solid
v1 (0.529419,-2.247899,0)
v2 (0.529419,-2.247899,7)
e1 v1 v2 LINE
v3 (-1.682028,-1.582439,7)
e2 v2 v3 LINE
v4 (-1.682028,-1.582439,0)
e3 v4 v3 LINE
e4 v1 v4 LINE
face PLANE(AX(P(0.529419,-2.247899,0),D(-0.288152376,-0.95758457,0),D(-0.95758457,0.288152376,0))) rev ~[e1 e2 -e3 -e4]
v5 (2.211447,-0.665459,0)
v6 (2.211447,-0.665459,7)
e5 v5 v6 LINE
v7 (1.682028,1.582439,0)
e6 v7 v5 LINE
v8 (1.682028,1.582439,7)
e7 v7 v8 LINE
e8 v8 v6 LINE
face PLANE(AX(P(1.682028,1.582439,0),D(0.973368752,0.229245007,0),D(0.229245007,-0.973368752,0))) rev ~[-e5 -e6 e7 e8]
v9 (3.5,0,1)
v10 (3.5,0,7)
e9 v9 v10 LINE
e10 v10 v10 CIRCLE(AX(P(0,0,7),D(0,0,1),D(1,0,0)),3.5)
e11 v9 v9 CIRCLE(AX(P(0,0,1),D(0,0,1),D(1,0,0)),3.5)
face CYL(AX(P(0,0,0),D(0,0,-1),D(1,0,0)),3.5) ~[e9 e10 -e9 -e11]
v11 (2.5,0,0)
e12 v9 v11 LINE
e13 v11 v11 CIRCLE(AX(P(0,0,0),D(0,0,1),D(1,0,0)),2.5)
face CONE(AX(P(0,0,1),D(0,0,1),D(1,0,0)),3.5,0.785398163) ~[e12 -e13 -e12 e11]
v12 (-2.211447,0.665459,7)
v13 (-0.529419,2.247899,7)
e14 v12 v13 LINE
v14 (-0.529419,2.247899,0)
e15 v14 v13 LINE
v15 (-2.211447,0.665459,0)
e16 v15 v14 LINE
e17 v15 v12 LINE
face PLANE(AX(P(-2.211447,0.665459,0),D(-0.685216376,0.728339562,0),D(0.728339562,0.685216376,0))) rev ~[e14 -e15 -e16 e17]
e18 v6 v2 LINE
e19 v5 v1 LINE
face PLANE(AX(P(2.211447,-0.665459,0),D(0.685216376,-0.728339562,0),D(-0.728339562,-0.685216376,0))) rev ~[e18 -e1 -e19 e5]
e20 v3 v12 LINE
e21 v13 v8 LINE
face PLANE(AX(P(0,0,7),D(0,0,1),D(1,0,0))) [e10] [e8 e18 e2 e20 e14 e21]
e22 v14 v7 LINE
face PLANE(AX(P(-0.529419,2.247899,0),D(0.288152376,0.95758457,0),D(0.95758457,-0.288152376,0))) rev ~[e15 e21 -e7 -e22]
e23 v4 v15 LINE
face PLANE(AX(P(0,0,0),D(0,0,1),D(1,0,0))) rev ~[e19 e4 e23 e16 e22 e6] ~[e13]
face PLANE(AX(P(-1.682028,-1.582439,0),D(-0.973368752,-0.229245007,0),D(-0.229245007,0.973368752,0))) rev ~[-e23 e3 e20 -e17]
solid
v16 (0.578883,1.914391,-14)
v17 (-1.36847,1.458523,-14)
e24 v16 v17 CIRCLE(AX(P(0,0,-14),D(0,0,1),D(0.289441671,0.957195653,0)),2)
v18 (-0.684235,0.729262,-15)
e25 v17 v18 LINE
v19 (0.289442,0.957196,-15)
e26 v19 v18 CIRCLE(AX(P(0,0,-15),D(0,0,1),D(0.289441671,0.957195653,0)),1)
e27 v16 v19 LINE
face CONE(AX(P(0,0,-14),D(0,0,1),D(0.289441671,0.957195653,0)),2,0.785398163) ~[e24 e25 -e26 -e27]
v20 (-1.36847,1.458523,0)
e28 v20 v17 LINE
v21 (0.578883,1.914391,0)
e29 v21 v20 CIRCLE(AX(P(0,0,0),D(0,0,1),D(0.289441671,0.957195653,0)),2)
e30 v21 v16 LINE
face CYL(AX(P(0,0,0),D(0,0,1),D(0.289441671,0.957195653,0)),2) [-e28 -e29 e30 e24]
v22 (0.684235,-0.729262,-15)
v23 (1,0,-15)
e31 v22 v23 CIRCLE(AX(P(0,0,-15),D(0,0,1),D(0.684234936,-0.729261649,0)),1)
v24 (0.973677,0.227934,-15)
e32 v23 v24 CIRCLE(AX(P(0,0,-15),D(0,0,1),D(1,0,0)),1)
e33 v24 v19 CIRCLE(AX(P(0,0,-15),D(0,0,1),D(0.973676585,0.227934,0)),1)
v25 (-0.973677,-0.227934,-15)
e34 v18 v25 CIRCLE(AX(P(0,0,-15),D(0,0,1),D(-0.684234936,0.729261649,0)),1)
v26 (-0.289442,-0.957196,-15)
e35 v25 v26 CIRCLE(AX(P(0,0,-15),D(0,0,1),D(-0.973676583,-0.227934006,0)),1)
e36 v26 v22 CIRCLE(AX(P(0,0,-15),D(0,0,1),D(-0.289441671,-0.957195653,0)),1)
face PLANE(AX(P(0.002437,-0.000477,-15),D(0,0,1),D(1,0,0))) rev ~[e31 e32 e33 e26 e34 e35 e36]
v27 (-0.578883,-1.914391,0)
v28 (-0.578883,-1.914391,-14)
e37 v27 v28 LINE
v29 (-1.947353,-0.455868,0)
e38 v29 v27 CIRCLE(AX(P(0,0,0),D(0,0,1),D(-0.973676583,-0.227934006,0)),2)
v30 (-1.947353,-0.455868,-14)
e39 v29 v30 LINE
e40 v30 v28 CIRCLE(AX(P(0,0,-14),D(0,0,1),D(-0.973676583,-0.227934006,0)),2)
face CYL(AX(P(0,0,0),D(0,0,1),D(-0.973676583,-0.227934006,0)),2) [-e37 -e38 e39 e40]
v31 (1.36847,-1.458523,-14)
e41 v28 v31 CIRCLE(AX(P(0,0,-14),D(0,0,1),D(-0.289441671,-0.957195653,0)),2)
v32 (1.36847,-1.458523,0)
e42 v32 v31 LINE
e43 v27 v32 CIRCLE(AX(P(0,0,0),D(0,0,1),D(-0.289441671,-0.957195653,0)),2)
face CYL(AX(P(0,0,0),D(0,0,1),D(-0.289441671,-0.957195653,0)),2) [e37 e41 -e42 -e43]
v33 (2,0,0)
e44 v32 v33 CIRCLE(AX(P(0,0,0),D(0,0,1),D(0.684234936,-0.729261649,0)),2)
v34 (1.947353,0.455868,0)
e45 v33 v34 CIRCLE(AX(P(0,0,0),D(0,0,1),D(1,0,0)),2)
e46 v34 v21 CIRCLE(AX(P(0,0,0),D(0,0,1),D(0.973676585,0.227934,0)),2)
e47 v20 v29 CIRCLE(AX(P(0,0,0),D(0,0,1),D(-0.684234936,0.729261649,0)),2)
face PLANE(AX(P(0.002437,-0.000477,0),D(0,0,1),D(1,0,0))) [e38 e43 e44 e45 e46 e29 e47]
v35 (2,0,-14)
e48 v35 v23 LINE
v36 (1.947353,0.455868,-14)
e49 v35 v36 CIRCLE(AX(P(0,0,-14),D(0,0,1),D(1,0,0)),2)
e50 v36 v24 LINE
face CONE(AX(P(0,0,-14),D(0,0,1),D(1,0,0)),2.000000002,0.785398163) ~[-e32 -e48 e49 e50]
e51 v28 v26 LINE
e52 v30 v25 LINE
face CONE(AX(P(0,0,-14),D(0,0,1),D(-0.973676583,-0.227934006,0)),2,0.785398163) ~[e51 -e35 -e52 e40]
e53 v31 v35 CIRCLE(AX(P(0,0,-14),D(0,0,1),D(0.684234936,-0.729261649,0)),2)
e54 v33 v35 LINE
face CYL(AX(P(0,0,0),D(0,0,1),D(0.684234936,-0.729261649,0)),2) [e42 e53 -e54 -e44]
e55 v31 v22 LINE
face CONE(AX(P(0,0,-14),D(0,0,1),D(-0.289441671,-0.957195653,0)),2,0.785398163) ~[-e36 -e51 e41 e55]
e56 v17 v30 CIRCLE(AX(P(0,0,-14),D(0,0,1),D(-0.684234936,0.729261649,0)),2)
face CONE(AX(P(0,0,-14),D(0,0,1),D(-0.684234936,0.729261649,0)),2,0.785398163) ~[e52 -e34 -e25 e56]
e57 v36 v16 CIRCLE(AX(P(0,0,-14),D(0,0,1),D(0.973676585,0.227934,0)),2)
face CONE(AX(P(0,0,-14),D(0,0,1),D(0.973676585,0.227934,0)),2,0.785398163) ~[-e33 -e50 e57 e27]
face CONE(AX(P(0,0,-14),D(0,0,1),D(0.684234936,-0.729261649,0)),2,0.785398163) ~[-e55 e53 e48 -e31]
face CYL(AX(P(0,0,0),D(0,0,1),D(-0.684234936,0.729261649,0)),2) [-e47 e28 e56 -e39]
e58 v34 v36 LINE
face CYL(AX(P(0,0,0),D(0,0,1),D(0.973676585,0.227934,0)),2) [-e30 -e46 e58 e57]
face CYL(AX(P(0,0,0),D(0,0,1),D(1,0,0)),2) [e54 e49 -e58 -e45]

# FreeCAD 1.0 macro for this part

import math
import FreeCAD as App
import Part
import Sketcher

V = App.Vector


def edges_at(feature, points):
    """Names of the edges that pass closest to the given points."""
    edges = feature.Shape.Edges
    near = lambda p: min(range(len(edges)), key=lambda i: edges[i].distToShape(Part.Vertex(*p))[0])
    return sorted({f"Edge{near(p) + 1}" for p in points})


def add_polygon(sketch, points):
    """Adds a closed chain of lines whose ends are joined by coincident constraints."""
    first, n = sketch.GeometryCount, len(points)
    for a, b in zip(points, points[1:] + points[:1]):
        sketch.addGeometry(Part.LineSegment(App.Vector(*a, 0), App.Vector(*b, 0)), False)
    for i in range(n):
        sketch.addConstraint(Sketcher.Constraint("Coincident", first + i, 2, first + (i + 1) % n, 1))

doc = App.newDocument("Part")
body = doc.addObject("PartDesign::Body", "Body")

sketch1 = body.newObject("Sketcher::SketchObject", "Sketch")
sketch1.AttachmentSupport = (doc.getObject("XY_Plane"), [""])
sketch1.MapMode = "FlatFace"
sketch1.addGeometry(Part.Circle(V(0, 0, 0), V(0, 0, 1), 3.5), False)
add_polygon(sketch1, [(-0.529419, 2.247899), (1.682028, 1.582439), (2.211447, -0.665459), (0.529419, -2.247899), (-1.682028, -1.582439), (-2.211447, 0.665459)])
sketch1.addConstraint([
    Sketcher.Constraint("Coincident", 0, 3, -1, 1),
    Sketcher.Constraint("Symmetric", 1, 2, 4, 2, -1, 1),
    Sketcher.Constraint("Symmetric", 2, 2, 5, 2, -1, 1),
    Sketcher.Constraint("Symmetric", 3, 2, 6, 2, -1, 1),
    Sketcher.Constraint("Equal", 1, 2),
    Sketcher.Constraint("Equal", 2, 3),
    Sketcher.Constraint("Diameter", 0, 7.0),
    Sketcher.Constraint("Distance", 1, 2.309401),
    Sketcher.Constraint("DistanceY", 3, 2, -1, 1, 2.247899),
    Sketcher.Constraint("DistanceY", 2, 2, 1, 2, 2.247899),
    Sketcher.Constraint("DistanceX", -1, 1, 1, 2, 1.682028),
])
pad1 = body.newObject("PartDesign::Pad", "Pad")
pad1.Profile = sketch1
pad1.Length = 7
doc.recompute()

chamfer = body.newObject("PartDesign::Chamfer", "Chamfer")
chamfer.Base = (pad1, edges_at(pad1, [(-3.5, 0, 0)]))
chamfer.Size = 1
body2 = doc.addObject("PartDesign::Body", "Body001")

sketch2 = body2.newObject("Sketcher::SketchObject", "Sketch001")
sketch2.AttachmentSupport = (doc.getObject("XY_Plane001"), [""])
sketch2.MapMode = "FlatFace"
sketch2.addGeometry([
    Part.ArcOfCircle(Part.Circle(V(0, 0, 0), V(0, 0, 1), 2), math.radians(0), math.radians(13.175468)),
    Part.ArcOfCircle(Part.Circle(V(0, 0, 0), V(0, 0, 1), 2), math.radians(13.175468), math.radians(73.175467)),
    Part.ArcOfCircle(Part.Circle(V(0, 0, 0), V(0, 0, 1), 2), math.radians(73.175467), math.radians(133.175469)),
    Part.ArcOfCircle(Part.Circle(V(0, 0, 0), V(0, 0, 1), 2), math.radians(133.175469), math.radians(193.175468)),
    Part.ArcOfCircle(Part.Circle(V(0, 0, 0), V(0, 0, 1), 2), math.radians(-166.824532), math.radians(-106.824533)),
    Part.ArcOfCircle(Part.Circle(V(0, 0, 0), V(0, 0, 1), 2), math.radians(-106.824533), math.radians(-46.824531)),
    Part.ArcOfCircle(Part.Circle(V(0, 0, 0), V(0, 0, 1), 2), math.radians(-46.824531), math.radians(0)),
], False)
sketch2.addConstraint([
    Sketcher.Constraint("Tangent", 0, 2, 1, 1),
    Sketcher.Constraint("Tangent", 1, 2, 2, 1),
    Sketcher.Constraint("Tangent", 2, 2, 3, 1),
    Sketcher.Constraint("Tangent", 3, 2, 4, 1),
    Sketcher.Constraint("Tangent", 4, 2, 5, 1),
    Sketcher.Constraint("Tangent", 5, 2, 6, 1),
    Sketcher.Constraint("Tangent", 6, 2, 0, 1),
    Sketcher.Constraint("Coincident", 0, 3, -1, 1),
    Sketcher.Constraint("Coincident", 2, 3, -1, 1),
    Sketcher.Constraint("Coincident", 4, 3, -1, 1),
    Sketcher.Constraint("PointOnObject", 6, 2, -1),
    Sketcher.Constraint("Radius", 0, 2.0),
    Sketcher.Constraint("DistanceY", -1, 1, 0, 2, 0.455868),
    Sketcher.Constraint("DistanceY", -1, 1, 1, 2, 1.914391),
    Sketcher.Constraint("DistanceX", 2, 2, -1, 1, 1.36847),
    Sketcher.Constraint("DistanceY", 3, 2, -1, 1, 0.455868),
    Sketcher.Constraint("DistanceY", 4, 2, -1, 1, 1.914391),
    Sketcher.Constraint("DistanceX", -1, 1, 5, 2, 1.36847),
])
pad2 = body2.newObject("PartDesign::Pad", "Pad001")
pad2.Profile = sketch2
pad2.Length = 15
pad2.Reversed = True
doc.recompute()

chamfer2 = body2.newObject("PartDesign::Chamfer", "Chamfer001")
chamfer2.Base = (pad2, edges_at(pad2, [(1.987, 0.229, -15)]))
chamfer2.Size = 1

doc.recompute()
